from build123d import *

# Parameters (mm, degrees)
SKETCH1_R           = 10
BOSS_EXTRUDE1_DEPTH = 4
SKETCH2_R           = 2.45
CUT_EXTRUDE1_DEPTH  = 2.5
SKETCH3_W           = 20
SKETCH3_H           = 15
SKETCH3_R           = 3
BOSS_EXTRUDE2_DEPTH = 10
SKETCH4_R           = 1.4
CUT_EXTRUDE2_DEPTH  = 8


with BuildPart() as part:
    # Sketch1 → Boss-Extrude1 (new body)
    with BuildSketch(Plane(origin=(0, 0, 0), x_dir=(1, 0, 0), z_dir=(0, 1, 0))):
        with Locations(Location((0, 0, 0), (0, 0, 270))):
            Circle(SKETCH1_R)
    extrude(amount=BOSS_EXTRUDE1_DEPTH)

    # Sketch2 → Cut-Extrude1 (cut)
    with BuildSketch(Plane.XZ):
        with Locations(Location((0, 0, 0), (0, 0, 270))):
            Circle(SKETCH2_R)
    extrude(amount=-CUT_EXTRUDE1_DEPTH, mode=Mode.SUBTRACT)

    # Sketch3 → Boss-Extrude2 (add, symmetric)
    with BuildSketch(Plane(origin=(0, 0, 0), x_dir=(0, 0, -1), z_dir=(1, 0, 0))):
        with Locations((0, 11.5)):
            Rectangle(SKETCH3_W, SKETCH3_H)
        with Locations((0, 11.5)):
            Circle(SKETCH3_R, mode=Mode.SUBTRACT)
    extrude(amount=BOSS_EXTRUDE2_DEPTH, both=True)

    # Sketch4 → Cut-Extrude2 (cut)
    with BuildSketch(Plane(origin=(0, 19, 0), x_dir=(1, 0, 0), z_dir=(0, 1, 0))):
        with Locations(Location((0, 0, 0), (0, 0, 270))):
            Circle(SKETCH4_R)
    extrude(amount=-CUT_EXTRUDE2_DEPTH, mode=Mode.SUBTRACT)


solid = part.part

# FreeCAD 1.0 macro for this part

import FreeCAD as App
import Part
import Sketcher
from FreeCAD import Vector
Q = App.Units.Quantity

doc = App.newDocument("Part")
params = doc.addObject("Spreadsheet::Sheet", "Params")
for row, (alias, value) in enumerate([
    ("sketch1_diameter", "20 mm"),
    ("pad1_length", "4 mm"),
    ("sketch2_diameter", "4.9 mm"),
    ("pocket1_length", "2.5 mm"),
    ("sketch3_diameter", "6 mm"),
    ("sketch3_width", "15 mm"),
    ("sketch3_height", "20 mm"),
    ("pad2_length", "20 mm"),
    ("sketch4_diameter", "2.8 mm"),
    ("pocket2_length", "8 mm"),
], start=1):
    params.set(f"A{row}", alias)
    params.set(f"B{row}", "=" + value)
    params.setAlias(f"B{row}", alias)

body = doc.addObject("PartDesign::Body", "Body")

sketch1 = doc.addObject("Sketcher::SketchObject", "Sketch")
body.addObject(sketch1)
sketch1.AttachmentSupport = (doc.XZ_Plane, [""])
sketch1.MapMode = "FlatFace"
sketch1.addGeometry(Part.Circle(Vector(0, 0, 0), Vector(0, 0, 1), 10), False)
sketch1.addConstraint([
    Sketcher.Constraint("Coincident", 0, 3, -1, 1),
    Sketcher.Constraint("Diameter", 0, Q("20 mm")),
])
sketch1.setExpression("Constraints[1]", "Params.sketch1_diameter")
pad1 = doc.addObject("PartDesign::Pad", "Pad")
body.addObject(pad1)
pad1.Profile = sketch1
pad1.setExpression("Length", "Params.pad1_length")
pad1.Reversed = True

sketch2 = doc.addObject("Sketcher::SketchObject", "Sketch001")
body.addObject(sketch2)
sketch2.AttachmentSupport = (doc.XZ_Plane, [""])
sketch2.MapMode = "FlatFace"
sketch2.addGeometry(Part.Circle(Vector(0, 0, 0), Vector(0, 0, 1), 2.5), False)
sketch2.addConstraint([
    Sketcher.Constraint("Coincident", 0, 3, -1, 1),
    Sketcher.Constraint("Diameter", 0, Q("4.9 mm")),
])
sketch2.setExpression("Constraints[1]", "Params.sketch2_diameter")
pocket1 = doc.addObject("PartDesign::Pocket", "Pocket")
body.addObject(pocket1)
pocket1.Profile = sketch2
pocket1.setExpression("Length", "Params.pocket1_length")

sketch3 = doc.addObject("Sketcher::SketchObject", "Sketch002")
body.addObject(sketch3)
sketch3.AttachmentSupport = (doc.YZ_Plane, [""])
sketch3.MapMode = "FlatFace"
sketch3.addGeometry([
    Part.LineSegment(Vector(19, 10, 0), Vector(4, 10, 0)),
    Part.LineSegment(Vector(4, 10, 0), Vector(4, -10, 0)),
    Part.LineSegment(Vector(4, -10, 0), Vector(19, -10, 0)),
    Part.LineSegment(Vector(19, -10, 0), Vector(19, 10, 0)),
    Part.Circle(Vector(11.5, 0, 0), Vector(0, 0, 1), 3),
], False)
sketch3.addConstraint([
    Sketcher.Constraint("Coincident", 0, 2, 1, 1),
    Sketcher.Constraint("Coincident", 1, 2, 2, 1),
    Sketcher.Constraint("Coincident", 2, 2, 3, 1),
    Sketcher.Constraint("Coincident", 3, 2, 0, 1),
    Sketcher.Constraint("Horizontal", 0),
    Sketcher.Constraint("Vertical", 1),
    Sketcher.Constraint("Horizontal", 2),
    Sketcher.Constraint("Vertical", 3),
    Sketcher.Constraint("PointOnObject", 4, 3, -1),
    Sketcher.Constraint("Diameter", 4, Q("6 mm")),
    Sketcher.Constraint("DistanceX", 0, 2, 0, 1, Q("15 mm")),
    Sketcher.Constraint("DistanceY", 1, 2, 1, 1, Q("20 mm")),
    Sketcher.Constraint("DistanceX", -1, 1, 0, 2, Q("4 mm")),
    Sketcher.Constraint("DistanceY", -1, 1, 0, 2, Q("10 mm")),
    Sketcher.Constraint("DistanceX", -1, 1, 4, 3, Q("11.5 mm")),
])
sketch3.setExpression("Constraints[9]", "Params.sketch3_diameter")
sketch3.setExpression("Constraints[10]", "Params.sketch3_width")
sketch3.setExpression("Constraints[11]", "Params.sketch3_height")
pad2 = doc.addObject("PartDesign::Pad", "Pad001")
body.addObject(pad2)
pad2.Profile = sketch3
pad2.setExpression("Length", "Params.pad2_length")
pad2.Midplane = True

sketch4 = doc.addObject("Sketcher::SketchObject", "Sketch003")
body.addObject(sketch4)
sketch4.AttachmentSupport = (doc.XZ_Plane, [""])
sketch4.MapMode = "FlatFace"
sketch4.AttachmentOffset = App.Placement(Vector(0, 0, -19), App.Rotation())
sketch4.addGeometry(Part.Circle(Vector(0, 0, 0), Vector(0, 0, 1), 1.4), False)
sketch4.addConstraint([
    Sketcher.Constraint("Coincident", 0, 3, -1, 1),
    Sketcher.Constraint("Diameter", 0, Q("2.8 mm")),
])
sketch4.setExpression("Constraints[1]", "Params.sketch4_diameter")
pocket2 = doc.addObject("PartDesign::Pocket", "Pocket001")
body.addObject(pocket2)
pocket2.Profile = sketch4
pocket2.setExpression("Length", "Params.pocket2_length")
pocket2.Reversed = True

doc.recompute()
